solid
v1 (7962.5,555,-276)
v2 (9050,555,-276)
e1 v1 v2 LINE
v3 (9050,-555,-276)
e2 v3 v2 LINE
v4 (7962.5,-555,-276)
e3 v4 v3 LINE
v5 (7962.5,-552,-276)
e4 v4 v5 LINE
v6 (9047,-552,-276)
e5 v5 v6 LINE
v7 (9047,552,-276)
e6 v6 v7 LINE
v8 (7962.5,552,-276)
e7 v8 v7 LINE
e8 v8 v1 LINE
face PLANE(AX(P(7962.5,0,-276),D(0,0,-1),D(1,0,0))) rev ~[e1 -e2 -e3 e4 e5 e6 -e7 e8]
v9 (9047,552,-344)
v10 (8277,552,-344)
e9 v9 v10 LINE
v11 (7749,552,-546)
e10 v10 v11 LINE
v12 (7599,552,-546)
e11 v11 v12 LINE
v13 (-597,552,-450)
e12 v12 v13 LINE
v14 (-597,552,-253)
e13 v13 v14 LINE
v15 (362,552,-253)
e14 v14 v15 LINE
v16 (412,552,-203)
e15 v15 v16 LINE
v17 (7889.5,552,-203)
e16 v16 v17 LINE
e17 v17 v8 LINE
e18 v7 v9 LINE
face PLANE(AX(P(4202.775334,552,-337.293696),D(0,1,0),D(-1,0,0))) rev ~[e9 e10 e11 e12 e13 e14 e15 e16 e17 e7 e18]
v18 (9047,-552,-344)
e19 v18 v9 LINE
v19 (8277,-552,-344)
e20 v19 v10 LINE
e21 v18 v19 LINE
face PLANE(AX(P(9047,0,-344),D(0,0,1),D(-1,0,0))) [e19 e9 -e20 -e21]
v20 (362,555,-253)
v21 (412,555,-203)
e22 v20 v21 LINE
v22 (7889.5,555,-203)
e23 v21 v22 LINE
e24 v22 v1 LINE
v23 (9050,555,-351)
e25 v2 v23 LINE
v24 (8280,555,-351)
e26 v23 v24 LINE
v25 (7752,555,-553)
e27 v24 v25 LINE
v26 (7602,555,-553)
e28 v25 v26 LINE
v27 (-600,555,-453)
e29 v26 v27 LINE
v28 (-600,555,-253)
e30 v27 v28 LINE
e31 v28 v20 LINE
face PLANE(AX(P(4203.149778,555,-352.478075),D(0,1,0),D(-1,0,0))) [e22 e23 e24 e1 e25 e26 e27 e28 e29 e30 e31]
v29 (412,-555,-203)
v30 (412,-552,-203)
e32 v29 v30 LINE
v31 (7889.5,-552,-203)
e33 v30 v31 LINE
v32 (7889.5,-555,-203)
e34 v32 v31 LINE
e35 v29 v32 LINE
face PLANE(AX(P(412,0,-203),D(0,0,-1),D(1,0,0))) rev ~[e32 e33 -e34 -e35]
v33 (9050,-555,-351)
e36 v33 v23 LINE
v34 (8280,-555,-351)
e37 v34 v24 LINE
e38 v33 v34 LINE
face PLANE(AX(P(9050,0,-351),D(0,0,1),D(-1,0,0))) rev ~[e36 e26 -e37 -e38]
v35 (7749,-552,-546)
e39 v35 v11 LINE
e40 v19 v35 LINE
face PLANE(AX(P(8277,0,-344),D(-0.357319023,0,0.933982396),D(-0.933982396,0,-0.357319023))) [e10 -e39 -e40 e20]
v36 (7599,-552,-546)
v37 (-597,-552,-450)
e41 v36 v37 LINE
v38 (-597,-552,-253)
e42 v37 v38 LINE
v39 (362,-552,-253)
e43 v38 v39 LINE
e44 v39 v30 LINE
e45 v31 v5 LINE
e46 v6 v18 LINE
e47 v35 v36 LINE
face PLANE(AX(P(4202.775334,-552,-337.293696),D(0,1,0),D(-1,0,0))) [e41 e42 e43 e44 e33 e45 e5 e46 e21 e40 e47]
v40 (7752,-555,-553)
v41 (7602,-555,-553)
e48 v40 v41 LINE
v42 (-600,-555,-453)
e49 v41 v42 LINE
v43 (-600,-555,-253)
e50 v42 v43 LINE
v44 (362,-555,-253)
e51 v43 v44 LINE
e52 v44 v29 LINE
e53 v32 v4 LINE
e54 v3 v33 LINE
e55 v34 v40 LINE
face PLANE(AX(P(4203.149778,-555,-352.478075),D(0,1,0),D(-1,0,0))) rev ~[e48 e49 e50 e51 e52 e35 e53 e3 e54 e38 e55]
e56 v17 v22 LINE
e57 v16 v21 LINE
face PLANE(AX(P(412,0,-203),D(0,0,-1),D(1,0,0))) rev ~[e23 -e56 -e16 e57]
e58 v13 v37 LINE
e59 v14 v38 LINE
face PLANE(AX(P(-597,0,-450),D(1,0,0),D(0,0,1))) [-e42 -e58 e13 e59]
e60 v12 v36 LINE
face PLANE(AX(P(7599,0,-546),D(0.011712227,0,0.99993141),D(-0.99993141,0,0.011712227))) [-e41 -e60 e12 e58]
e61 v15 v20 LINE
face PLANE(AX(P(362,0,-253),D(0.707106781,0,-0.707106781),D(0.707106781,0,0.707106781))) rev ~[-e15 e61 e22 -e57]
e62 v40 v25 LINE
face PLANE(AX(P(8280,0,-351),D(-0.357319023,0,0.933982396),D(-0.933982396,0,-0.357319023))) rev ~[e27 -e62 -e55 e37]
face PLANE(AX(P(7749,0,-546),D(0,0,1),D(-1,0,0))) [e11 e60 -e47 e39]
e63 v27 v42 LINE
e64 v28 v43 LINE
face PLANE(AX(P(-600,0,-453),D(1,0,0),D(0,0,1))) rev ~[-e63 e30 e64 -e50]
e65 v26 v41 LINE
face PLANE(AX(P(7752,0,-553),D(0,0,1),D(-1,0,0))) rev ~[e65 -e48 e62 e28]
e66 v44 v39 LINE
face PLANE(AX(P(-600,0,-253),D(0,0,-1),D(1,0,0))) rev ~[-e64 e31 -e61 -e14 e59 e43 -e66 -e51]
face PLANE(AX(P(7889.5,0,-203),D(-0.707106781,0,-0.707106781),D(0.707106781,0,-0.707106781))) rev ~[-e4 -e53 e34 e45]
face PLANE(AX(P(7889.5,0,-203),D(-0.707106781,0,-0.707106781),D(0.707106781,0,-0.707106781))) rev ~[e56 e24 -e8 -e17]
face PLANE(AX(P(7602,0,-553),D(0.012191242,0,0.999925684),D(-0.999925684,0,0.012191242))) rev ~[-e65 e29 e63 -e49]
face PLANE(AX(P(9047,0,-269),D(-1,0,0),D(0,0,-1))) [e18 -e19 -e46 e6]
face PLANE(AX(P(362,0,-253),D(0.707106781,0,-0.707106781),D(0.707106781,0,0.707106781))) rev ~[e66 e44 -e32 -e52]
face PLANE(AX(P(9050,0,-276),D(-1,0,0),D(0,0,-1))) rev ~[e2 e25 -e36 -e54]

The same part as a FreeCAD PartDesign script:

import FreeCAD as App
import Part
import Sketcher
from FreeCAD import Vector
Q = App.Units.Quantity


def add_polygon(sketch, points):
    """Adds a closed chain of lines whose ends are joined by coincident constraints."""
    first, n = sketch.GeometryCount, len(points)
    for a, b in zip(points, points[1:] + points[:1]):
        sketch.addGeometry(Part.LineSegment(App.Vector(*a, 0), App.Vector(*b, 0)), False)
    for i in range(n):
        sketch.addConstraint(Sketcher.Constraint("Coincident", first + i, 2, first + (i + 1) % n, 1))

doc = App.newDocument("Part")
params = doc.addObject("Spreadsheet::Sheet", "Params")
for row, (alias, value) in enumerate([
    ("sketch1_width", "959 mm"),
    ("sketch1_width2", "150 mm"),
    ("sketch1_width3", "770 mm"),
    ("sketch1_height", "200 mm"),
    ("sketch1_height2", "75 mm"),
    ("pad1_length", "1104 mm"),
    ("sketch2_width", "962 mm"),
    ("sketch2_width2", "150 mm"),
    ("sketch2_width3", "770 mm"),
    ("sketch2_height", "200 mm"),
    ("sketch2_height2", "75 mm"),
    ("pad2_length", "1110 mm"),
], start=1):
    params.set(f"A{row}", alias)
    params.set(f"B{row}", "=" + value)
    params.setAlias(f"B{row}", alias)

body = doc.addObject("PartDesign::Body", "Body")

sketch1 = doc.addObject("Sketcher::SketchObject", "Sketch")
body.addObject(sketch1)
sketch1.AttachmentSupport = (doc.XZ_Plane, [""])
sketch1.MapMode = "FlatFace"
add_polygon(sketch1, [(362, -253), (-597, -253), (-597, -453), (7599, -549), (7749, -549), (8277, -347), (9047, -347), (9047, -272), (7960, -272), (7862, -175), (440, -175)])
sketch1.addConstraint([
    Sketcher.Constraint("Horizontal", 0),
    Sketcher.Constraint("Vertical", 1),
    Sketcher.Constraint("Horizontal", 3),
    Sketcher.Constraint("Horizontal", 5),
    Sketcher.Constraint("Vertical", 6),
    Sketcher.Constraint("Horizontal", 7),
    Sketcher.Constraint("Horizontal", 9),
    Sketcher.Constraint("Perpendicular", 8, 10),
    Sketcher.Constraint("DistanceX", 0, 2, 0, 1, Q("959 mm")),
    Sketcher.Constraint("DistanceX", 3, 1, 3, 2, Q("150 mm")),
    Sketcher.Constraint("DistanceX", 5, 1, 5, 2, Q("770 mm")),
    Sketcher.Constraint("DistanceY", 1, 2, 1, 1, Q("200 mm")),
    Sketcher.Constraint("DistanceY", 6, 1, 6, 2, Q("75 mm")),
    Sketcher.Constraint("Angle", 8, Q("135 deg")),
    Sketcher.Constraint("DistanceX", 7, 2, 7, 1, Q("1087.5 mm")),
    Sketcher.Constraint("DistanceX", 9, 2, 9, 1, Q("7422.5 mm")),
    Sketcher.Constraint("DistanceX", 0, 2, -1, 1, Q("597 mm")),
    Sketcher.Constraint("DistanceY", 0, 2, -1, 1, Q("253 mm")),
    Sketcher.Constraint("DistanceX", -1, 1, 2, 2, Q("7599 mm")),
    Sketcher.Constraint("DistanceY", 2, 2, -1, 1, Q("549 mm")),
    Sketcher.Constraint("DistanceX", -1, 1, 4, 2, Q("8277 mm")),
    Sketcher.Constraint("DistanceY", 4, 2, -1, 1, Q("347 mm")),
])
sketch1.setExpression("Constraints[19]", "Params.sketch1_width")
sketch1.setExpression("Constraints[20]", "Params.sketch1_width2")
sketch1.setExpression("Constraints[21]", "Params.sketch1_width3")
sketch1.setExpression("Constraints[22]", "Params.sketch1_height")
sketch1.setExpression("Constraints[23]", "Params.sketch1_height2")
pad1 = doc.addObject("PartDesign::Pad", "Pad")
body.addObject(pad1)
pad1.Profile = sketch1
pad1.setExpression("Length", "Params.pad1_length")
pad1.Midplane = True
body2 = doc.addObject("PartDesign::Body", "Body001")
doc.recompute()

body.Placement = App.Placement(Vector(0, 0, 3), App.Rotation(Vector(0, 0, 1), 0))
boolean = doc.addObject("PartDesign::Boolean", "Boolean")
body2.addObject(boolean)
boolean.Type = "Fuse"
boolean.addObjects([body])
body3 = doc.addObject("PartDesign::Body", "Body002")

sketch2 = doc.addObject("Sketcher::SketchObject", "Sketch001")
body3.addObject(sketch2)
sketch2.AttachmentSupport = (doc.getObject("XZ_Plane002"), [""])
sketch2.MapMode = "FlatFace"
add_polygon(sketch2, [(362, -253), (-600, -253), (-600, -453), (7602, -553), (7752, -553), (8280, -351), (9050, -351), (9050, -276), (7962, -276), (7890, -203), (412, -203)])
sketch2.addConstraint([
    Sketcher.Constraint("Horizontal", 0),
    Sketcher.Constraint("Vertical", 1),
    Sketcher.Constraint("Horizontal", 3),
    Sketcher.Constraint("Horizontal", 5),
    Sketcher.Constraint("Vertical", 6),
    Sketcher.Constraint("Horizontal", 7),
    Sketcher.Constraint("Horizontal", 9),
    Sketcher.Constraint("Perpendicular", 8, 10),
    Sketcher.Constraint("DistanceX", 0, 2, 0, 1, Q("962 mm")),
    Sketcher.Constraint("DistanceX", 3, 1, 3, 2, Q("150 mm")),
    Sketcher.Constraint("DistanceX", 5, 1, 5, 2, Q("770 mm")),
    Sketcher.Constraint("DistanceY", 1, 2, 1, 1, Q("200 mm")),
    Sketcher.Constraint("DistanceY", 6, 1, 6, 2, Q("75 mm")),
    Sketcher.Constraint("Angle", 8, Q("135 deg")),
    Sketcher.Constraint("DistanceX", 7, 2, 7, 1, Q("1087.5 mm")),
    Sketcher.Constraint("DistanceX", 9, 2, 9, 1, Q("7477.5 mm")),
    Sketcher.Constraint("DistanceX", 0, 2, -1, 1, Q("600 mm")),
    Sketcher.Constraint("DistanceY", 0, 2, -1, 1, Q("253 mm")),
    Sketcher.Constraint("DistanceX", -1, 1, 2, 2, Q("7602 mm")),
    Sketcher.Constraint("DistanceY", 2, 2, -1, 1, Q("553 mm")),
    Sketcher.Constraint("DistanceX", -1, 1, 4, 2, Q("8280 mm")),
    Sketcher.Constraint("DistanceY", 4, 2, -1, 1, Q("351 mm")),
])
sketch2.setExpression("Constraints[19]", "Params.sketch2_width")
sketch2.setExpression("Constraints[20]", "Params.sketch2_width2")
sketch2.setExpression("Constraints[21]", "Params.sketch2_width3")
sketch2.setExpression("Constraints[22]", "Params.sketch2_height")
sketch2.setExpression("Constraints[23]", "Params.sketch2_height2")
pad2 = doc.addObject("PartDesign::Pad", "Pad001")
body3.addObject(pad2)
pad2.Profile = sketch2
pad2.setExpression("Length", "Params.pad2_length")
pad2.Midplane = True
doc.recompute()

boolean2 = doc.addObject("PartDesign::Boolean", "Boolean001")
body3.addObject(boolean2)
boolean2.Type = "Cut"
boolean2.addObjects([body2])

doc.recompute()
